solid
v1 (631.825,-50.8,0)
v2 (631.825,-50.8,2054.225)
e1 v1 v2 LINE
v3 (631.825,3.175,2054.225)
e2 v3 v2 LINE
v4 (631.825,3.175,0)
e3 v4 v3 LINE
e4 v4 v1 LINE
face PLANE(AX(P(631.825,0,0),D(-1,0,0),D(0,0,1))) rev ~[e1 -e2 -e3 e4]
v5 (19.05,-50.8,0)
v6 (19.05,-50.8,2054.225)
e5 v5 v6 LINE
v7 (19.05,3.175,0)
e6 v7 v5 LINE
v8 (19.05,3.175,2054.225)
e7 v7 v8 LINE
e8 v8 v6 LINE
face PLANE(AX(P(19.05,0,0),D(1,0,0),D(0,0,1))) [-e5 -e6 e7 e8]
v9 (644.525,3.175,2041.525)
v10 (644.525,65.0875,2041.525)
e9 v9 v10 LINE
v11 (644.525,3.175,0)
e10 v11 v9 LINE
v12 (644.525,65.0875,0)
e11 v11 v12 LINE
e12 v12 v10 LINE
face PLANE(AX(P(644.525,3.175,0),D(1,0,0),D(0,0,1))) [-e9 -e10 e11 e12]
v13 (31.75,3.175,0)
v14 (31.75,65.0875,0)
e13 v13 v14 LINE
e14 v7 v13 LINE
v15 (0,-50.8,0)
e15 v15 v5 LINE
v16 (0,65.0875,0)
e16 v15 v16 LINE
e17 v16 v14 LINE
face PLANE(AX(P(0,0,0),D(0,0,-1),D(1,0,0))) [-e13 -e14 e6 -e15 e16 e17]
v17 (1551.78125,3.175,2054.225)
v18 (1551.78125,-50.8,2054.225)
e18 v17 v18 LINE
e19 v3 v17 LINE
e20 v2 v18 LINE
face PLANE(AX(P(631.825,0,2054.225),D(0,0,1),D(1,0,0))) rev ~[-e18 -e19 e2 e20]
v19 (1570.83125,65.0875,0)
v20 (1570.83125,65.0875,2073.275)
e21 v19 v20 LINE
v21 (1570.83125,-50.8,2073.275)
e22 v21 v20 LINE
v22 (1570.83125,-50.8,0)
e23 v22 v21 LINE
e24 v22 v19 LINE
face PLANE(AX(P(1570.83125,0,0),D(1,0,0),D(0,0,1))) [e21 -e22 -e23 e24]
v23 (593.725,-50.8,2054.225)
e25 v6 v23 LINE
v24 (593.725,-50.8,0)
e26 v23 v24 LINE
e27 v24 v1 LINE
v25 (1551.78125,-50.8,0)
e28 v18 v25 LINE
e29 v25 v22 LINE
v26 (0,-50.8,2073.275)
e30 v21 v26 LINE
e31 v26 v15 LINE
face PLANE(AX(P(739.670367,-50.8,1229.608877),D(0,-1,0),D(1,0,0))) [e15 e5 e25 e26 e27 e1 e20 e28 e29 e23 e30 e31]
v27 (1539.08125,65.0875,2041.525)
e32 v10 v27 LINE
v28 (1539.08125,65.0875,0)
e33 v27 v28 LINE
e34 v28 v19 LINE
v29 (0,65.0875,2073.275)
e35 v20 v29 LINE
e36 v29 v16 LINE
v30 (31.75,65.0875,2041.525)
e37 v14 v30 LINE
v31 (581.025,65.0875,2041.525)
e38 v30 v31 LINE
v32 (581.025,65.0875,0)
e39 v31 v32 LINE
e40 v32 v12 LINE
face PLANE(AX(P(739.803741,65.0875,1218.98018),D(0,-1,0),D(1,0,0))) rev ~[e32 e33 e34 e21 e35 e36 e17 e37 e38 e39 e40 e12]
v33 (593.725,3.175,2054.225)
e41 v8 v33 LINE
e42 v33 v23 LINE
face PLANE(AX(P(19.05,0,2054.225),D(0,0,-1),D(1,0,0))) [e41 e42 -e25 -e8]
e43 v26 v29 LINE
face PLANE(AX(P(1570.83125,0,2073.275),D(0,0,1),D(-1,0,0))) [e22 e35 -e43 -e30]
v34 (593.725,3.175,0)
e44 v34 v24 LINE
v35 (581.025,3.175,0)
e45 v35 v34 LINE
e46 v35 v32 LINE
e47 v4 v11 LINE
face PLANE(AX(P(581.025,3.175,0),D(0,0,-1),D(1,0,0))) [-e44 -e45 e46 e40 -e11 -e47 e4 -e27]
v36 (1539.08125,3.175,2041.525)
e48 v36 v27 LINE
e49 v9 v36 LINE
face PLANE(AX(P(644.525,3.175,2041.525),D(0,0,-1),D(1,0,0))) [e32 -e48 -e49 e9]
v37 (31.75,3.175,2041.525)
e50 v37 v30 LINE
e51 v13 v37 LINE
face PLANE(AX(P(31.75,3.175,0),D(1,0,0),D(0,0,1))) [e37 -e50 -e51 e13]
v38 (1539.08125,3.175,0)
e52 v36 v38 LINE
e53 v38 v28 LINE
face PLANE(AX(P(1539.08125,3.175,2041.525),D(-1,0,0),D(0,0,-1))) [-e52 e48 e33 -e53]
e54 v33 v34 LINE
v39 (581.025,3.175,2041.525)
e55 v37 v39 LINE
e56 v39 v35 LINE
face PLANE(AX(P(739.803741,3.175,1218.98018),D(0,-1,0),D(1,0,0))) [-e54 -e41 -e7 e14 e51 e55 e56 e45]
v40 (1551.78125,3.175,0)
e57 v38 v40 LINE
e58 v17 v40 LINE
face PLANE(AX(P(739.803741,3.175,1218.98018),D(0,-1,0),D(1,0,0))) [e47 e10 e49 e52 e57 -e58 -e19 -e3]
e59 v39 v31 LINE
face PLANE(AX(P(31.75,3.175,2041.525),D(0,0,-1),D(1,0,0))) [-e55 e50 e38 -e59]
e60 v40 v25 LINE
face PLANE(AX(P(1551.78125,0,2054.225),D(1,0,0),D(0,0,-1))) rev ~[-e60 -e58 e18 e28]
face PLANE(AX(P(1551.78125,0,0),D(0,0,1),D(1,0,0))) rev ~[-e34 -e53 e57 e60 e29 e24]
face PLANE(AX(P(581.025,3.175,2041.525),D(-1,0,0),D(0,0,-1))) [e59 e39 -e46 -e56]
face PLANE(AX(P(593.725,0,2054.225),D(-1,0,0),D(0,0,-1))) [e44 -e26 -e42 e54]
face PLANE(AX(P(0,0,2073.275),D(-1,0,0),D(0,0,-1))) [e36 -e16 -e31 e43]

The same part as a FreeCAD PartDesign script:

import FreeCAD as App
import Part
import Sketcher
Q = App.Units.Quantity

doc = App.newDocument("Part")
params = doc.addObject("Spreadsheet::Sheet", "Params")
for row, (alias, value) in enumerate([
    ("sketch1_width", "2.5 in"),
    ("sketch1_width2", "1.25 in"),
    ("sketch1_width3", "21.625 in"),
    ("sketch1_width4", "35.21875 in"),
    ("sketch1_height", "80.375 in"),
    ("pad1_length", "2.4375 in"),
    ("sketch2_width", "1.5 in"),
    ("sketch2_width2", "0.75 in"),
    ("sketch2_width3", "22.625 in"),
    ("sketch2_width4", "36.21875 in"),
    ("sketch2_height", "80.875 in"),
    ("pad2_length", "2 in"),
    ("pad2_length2", "0.125 in"),
], start=1):
    params.set(f"A{row}", alias)
    params.set(f"B{row}", "=" + value)
    params.setAlias(f"B{row}", alias)

body = doc.addObject("PartDesign::Body", "Body")

# Sketch on XZ plane
sketch1 = doc.addObject("Sketcher::SketchObject", "Sketch")
body.addObject(sketch1)
sketch1.AttachmentSupport = (doc.XZ_Plane, [""])
sketch1.MapMode = "FlatFace"
sketch1.AttachmentOffset = App.Placement(App.Vector(0, 0, -0.125 * 25.4), App.Rotation())
sketch1.addGeometry(Part.LineSegment(App.Vector(0, 0, 0), App.Vector(32, 0, 0)), False)
sketch1.addGeometry(Part.LineSegment(App.Vector(32, 0, 0), App.Vector(32, 2042, 0)), False)
sketch1.addGeometry(Part.LineSegment(App.Vector(32, 2042, 0), App.Vector(581, 2042, 0)), False)
sketch1.addGeometry(Part.LineSegment(App.Vector(581, 2042, 0), App.Vector(581, 0, 0)), False)
sketch1.addGeometry(Part.LineSegment(App.Vector(581, 0, 0), App.Vector(645, 0, 0)), False)
sketch1.addGeometry(Part.LineSegment(App.Vector(645, 0, 0), App.Vector(645, 2042, 0)), False)
sketch1.addGeometry(Part.LineSegment(App.Vector(645, 2042, 0), App.Vector(1539, 2042, 0)), False)
sketch1.addGeometry(Part.LineSegment(App.Vector(1539, 2042, 0), App.Vector(1539, 0, 0)), False)
sketch1.addGeometry(Part.LineSegment(App.Vector(1539, 0, 0), App.Vector(1571, 0, 0)), False)
sketch1.addGeometry(Part.LineSegment(App.Vector(1571, 0, 0), App.Vector(1571, 2073, 0)), False)
sketch1.addGeometry(Part.LineSegment(App.Vector(1571, 2073, 0), App.Vector(0, 2073, 0)), False)
sketch1.addGeometry(Part.LineSegment(App.Vector(0, 2073, 0), App.Vector(0, 0, 0)), False)
sketch1.addConstraint(Sketcher.Constraint("Coincident", 0, 2, 1, 1))
sketch1.addConstraint(Sketcher.Constraint("Coincident", 1, 2, 2, 1))
sketch1.addConstraint(Sketcher.Constraint("Coincident", 2, 2, 3, 1))
sketch1.addConstraint(Sketcher.Constraint("Coincident", 3, 2, 4, 1))
sketch1.addConstraint(Sketcher.Constraint("Coincident", 4, 2, 5, 1))
sketch1.addConstraint(Sketcher.Constraint("Coincident", 5, 2, 6, 1))
sketch1.addConstraint(Sketcher.Constraint("Coincident", 6, 2, 7, 1))
sketch1.addConstraint(Sketcher.Constraint("Coincident", 7, 2, 8, 1))
sketch1.addConstraint(Sketcher.Constraint("Coincident", 8, 2, 9, 1))
sketch1.addConstraint(Sketcher.Constraint("Coincident", 9, 2, 10, 1))
sketch1.addConstraint(Sketcher.Constraint("Coincident", 10, 2, 11, 1))
sketch1.addConstraint(Sketcher.Constraint("Coincident", 11, 2, 0, 1))
sketch1.addConstraint(Sketcher.Constraint("Horizontal", 0))
sketch1.addConstraint(Sketcher.Constraint("Vertical", 1))
sketch1.addConstraint(Sketcher.Constraint("Horizontal", 2))
sketch1.addConstraint(Sketcher.Constraint("Vertical", 3))
sketch1.addConstraint(Sketcher.Constraint("Horizontal", 4))
sketch1.addConstraint(Sketcher.Constraint("Vertical", 5))
sketch1.addConstraint(Sketcher.Constraint("Horizontal", 6))
sketch1.addConstraint(Sketcher.Constraint("Vertical", 7))
sketch1.addConstraint(Sketcher.Constraint("Horizontal", 8))
sketch1.addConstraint(Sketcher.Constraint("Vertical", 9))
sketch1.addConstraint(Sketcher.Constraint("Horizontal", 10))
sketch1.addConstraint(Sketcher.Constraint("Vertical", 11))
sketch1.addConstraint(Sketcher.Constraint("Coincident", 11, 2, -1, 1))
sketch1.addConstraint(Sketcher.Constraint("PointOnObject", 3, 2, -1))
sketch1.addConstraint(Sketcher.Constraint("PointOnObject", 7, 2, -1))
sketch1.addConstraint(Sketcher.Constraint("Horizontal", 2, 2, 5, 2))
sketch1.addConstraint(Sketcher.Constraint("Equal", 0, 8))
sketch1.addConstraint(Sketcher.Constraint("DistanceX", 4, 1, 4, 2, Q("2.5 in")))
sketch1.addConstraint(Sketcher.Constraint("DistanceX", 0, 1, 0, 2, Q("1.25 in")))
sketch1.addConstraint(Sketcher.Constraint("DistanceX", 2, 1, 2, 2, Q("21.625 in")))
sketch1.addConstraint(Sketcher.Constraint("DistanceX", 6, 1, 6, 2, Q("35.21875 in")))
sketch1.addConstraint(Sketcher.Constraint("DistanceY", 1, 1, 1, 2, Q("80.375 in")))
sketch1.addConstraint(Sketcher.Constraint("DistanceY", 9, 1, 9, 2, Q("81.625 in")))
sketch1.setExpression("Constraints[29]", "Params.sketch1_width")
sketch1.setExpression("Constraints[30]", "Params.sketch1_width2")
sketch1.setExpression("Constraints[31]", "Params.sketch1_width3")
sketch1.setExpression("Constraints[32]", "Params.sketch1_width4")
sketch1.setExpression("Constraints[33]", "Params.sketch1_height")
pad1 = doc.addObject("PartDesign::Pad", "Pad")
body.addObject(pad1)
pad1.Profile = sketch1
pad1.setExpression("Length", "Params.pad1_length")
pad1.Reversed = True

# Sketch on XZ plane
sketch2 = doc.addObject("Sketcher::SketchObject", "Sketch001")
body.addObject(sketch2)
sketch2.AttachmentSupport = (doc.XZ_Plane, [""])
sketch2.MapMode = "FlatFace"
sketch2.addGeometry(Part.LineSegment(App.Vector(0, 0, 0), App.Vector(19, 0, 0)), False)
sketch2.addGeometry(Part.LineSegment(App.Vector(19, 0, 0), App.Vector(19, 2054, 0)), False)
sketch2.addGeometry(Part.LineSegment(App.Vector(19, 2054, 0), App.Vector(594, 2054, 0)), False)
sketch2.addGeometry(Part.LineSegment(App.Vector(594, 2054, 0), App.Vector(594, 0, 0)), False)
sketch2.addGeometry(Part.LineSegment(App.Vector(594, 0, 0), App.Vector(632, 0, 0)), False)
sketch2.addGeometry(Part.LineSegment(App.Vector(632, 0, 0), App.Vector(632, 2054, 0)), False)
sketch2.addGeometry(Part.LineSegment(App.Vector(632, 2054, 0), App.Vector(1552, 2054, 0)), False)
sketch2.addGeometry(Part.LineSegment(App.Vector(1552, 2054, 0), App.Vector(1552, 0, 0)), False)
sketch2.addGeometry(Part.LineSegment(App.Vector(1552, 0, 0), App.Vector(1571, 0, 0)), False)
sketch2.addGeometry(Part.LineSegment(App.Vector(1571, 0, 0), App.Vector(1571, 2073, 0)), False)
sketch2.addGeometry(Part.LineSegment(App.Vector(1571, 2073, 0), App.Vector(0, 2073, 0)), False)
sketch2.addGeometry(Part.LineSegment(App.Vector(0, 2073, 0), App.Vector(0, 0, 0)), False)
sketch2.addConstraint(Sketcher.Constraint("Coincident", 0, 2, 1, 1))
sketch2.addConstraint(Sketcher.Constraint("Coincident", 1, 2, 2, 1))
sketch2.addConstraint(Sketcher.Constraint("Coincident", 2, 2, 3, 1))
sketch2.addConstraint(Sketcher.Constraint("Coincident", 3, 2, 4, 1))
sketch2.addConstraint(Sketcher.Constraint("Coincident", 4, 2, 5, 1))
sketch2.addConstraint(Sketcher.Constraint("Coincident", 5, 2, 6, 1))
sketch2.addConstraint(Sketcher.Constraint("Coincident", 6, 2, 7, 1))
sketch2.addConstraint(Sketcher.Constraint("Coincident", 7, 2, 8, 1))
sketch2.addConstraint(Sketcher.Constraint("Coincident", 8, 2, 9, 1))
sketch2.addConstraint(Sketcher.Constraint("Coincident", 9, 2, 10, 1))
sketch2.addConstraint(Sketcher.Constraint("Coincident", 10, 2, 11, 1))
sketch2.addConstraint(Sketcher.Constraint("Coincident", 11, 2, 0, 1))
sketch2.addConstraint(Sketcher.Constraint("Horizontal", 0))
sketch2.addConstraint(Sketcher.Constraint("Vertical", 1))
sketch2.addConstraint(Sketcher.Constraint("Horizontal", 2))
sketch2.addConstraint(Sketcher.Constraint("Vertical", 3))
sketch2.addConstraint(Sketcher.Constraint("Horizontal", 4))
sketch2.addConstraint(Sketcher.Constraint("Vertical", 5))
sketch2.addConstraint(Sketcher.Constraint("Horizontal", 6))
sketch2.addConstraint(Sketcher.Constraint("Vertical", 7))
sketch2.addConstraint(Sketcher.Constraint("Horizontal", 8))
sketch2.addConstraint(Sketcher.Constraint("Vertical", 9))
sketch2.addConstraint(Sketcher.Constraint("Horizontal", 10))
sketch2.addConstraint(Sketcher.Constraint("Vertical", 11))
sketch2.addConstraint(Sketcher.Constraint("Coincident", 11, 2, -1, 1))
sketch2.addConstraint(Sketcher.Constraint("PointOnObject", 3, 2, -1))
sketch2.addConstraint(Sketcher.Constraint("PointOnObject", 7, 2, -1))
sketch2.addConstraint(Sketcher.Constraint("Horizontal", 2, 2, 5, 2))
sketch2.addConstraint(Sketcher.Constraint("Equal", 0, 8))
sketch2.addConstraint(Sketcher.Constraint("DistanceX", 4, 1, 4, 2, Q("1.5 in")))
sketch2.addConstraint(Sketcher.Constraint("DistanceX", 0, 1, 0, 2, Q("0.75 in")))
sketch2.addConstraint(Sketcher.Constraint("DistanceX", 2, 1, 2, 2, Q("22.625 in")))
sketch2.addConstraint(Sketcher.Constraint("DistanceX", 6, 1, 6, 2, Q("36.21875 in")))
sketch2.addConstraint(Sketcher.Constraint("DistanceY", 1, 1, 1, 2, Q("80.875 in")))
sketch2.addConstraint(Sketcher.Constraint("DistanceY", 9, 1, 9, 2, Q("81.625 in")))
sketch2.setExpression("Constraints[29]", "Params.sketch2_width")
sketch2.setExpression("Constraints[30]", "Params.sketch2_width2")
sketch2.setExpression("Constraints[31]", "Params.sketch2_width3")
sketch2.setExpression("Constraints[32]", "Params.sketch2_width4")
sketch2.setExpression("Constraints[33]", "Params.sketch2_height")
pad2 = doc.addObject("PartDesign::Pad", "Pad001")
body.addObject(pad2)
pad2.Profile = sketch2
pad2.Type = "TwoLengths"
pad2.setExpression("Length", "Params.pad2_length")
pad2.setExpression("Length2", "Params.pad2_length2")

doc.recompute()
